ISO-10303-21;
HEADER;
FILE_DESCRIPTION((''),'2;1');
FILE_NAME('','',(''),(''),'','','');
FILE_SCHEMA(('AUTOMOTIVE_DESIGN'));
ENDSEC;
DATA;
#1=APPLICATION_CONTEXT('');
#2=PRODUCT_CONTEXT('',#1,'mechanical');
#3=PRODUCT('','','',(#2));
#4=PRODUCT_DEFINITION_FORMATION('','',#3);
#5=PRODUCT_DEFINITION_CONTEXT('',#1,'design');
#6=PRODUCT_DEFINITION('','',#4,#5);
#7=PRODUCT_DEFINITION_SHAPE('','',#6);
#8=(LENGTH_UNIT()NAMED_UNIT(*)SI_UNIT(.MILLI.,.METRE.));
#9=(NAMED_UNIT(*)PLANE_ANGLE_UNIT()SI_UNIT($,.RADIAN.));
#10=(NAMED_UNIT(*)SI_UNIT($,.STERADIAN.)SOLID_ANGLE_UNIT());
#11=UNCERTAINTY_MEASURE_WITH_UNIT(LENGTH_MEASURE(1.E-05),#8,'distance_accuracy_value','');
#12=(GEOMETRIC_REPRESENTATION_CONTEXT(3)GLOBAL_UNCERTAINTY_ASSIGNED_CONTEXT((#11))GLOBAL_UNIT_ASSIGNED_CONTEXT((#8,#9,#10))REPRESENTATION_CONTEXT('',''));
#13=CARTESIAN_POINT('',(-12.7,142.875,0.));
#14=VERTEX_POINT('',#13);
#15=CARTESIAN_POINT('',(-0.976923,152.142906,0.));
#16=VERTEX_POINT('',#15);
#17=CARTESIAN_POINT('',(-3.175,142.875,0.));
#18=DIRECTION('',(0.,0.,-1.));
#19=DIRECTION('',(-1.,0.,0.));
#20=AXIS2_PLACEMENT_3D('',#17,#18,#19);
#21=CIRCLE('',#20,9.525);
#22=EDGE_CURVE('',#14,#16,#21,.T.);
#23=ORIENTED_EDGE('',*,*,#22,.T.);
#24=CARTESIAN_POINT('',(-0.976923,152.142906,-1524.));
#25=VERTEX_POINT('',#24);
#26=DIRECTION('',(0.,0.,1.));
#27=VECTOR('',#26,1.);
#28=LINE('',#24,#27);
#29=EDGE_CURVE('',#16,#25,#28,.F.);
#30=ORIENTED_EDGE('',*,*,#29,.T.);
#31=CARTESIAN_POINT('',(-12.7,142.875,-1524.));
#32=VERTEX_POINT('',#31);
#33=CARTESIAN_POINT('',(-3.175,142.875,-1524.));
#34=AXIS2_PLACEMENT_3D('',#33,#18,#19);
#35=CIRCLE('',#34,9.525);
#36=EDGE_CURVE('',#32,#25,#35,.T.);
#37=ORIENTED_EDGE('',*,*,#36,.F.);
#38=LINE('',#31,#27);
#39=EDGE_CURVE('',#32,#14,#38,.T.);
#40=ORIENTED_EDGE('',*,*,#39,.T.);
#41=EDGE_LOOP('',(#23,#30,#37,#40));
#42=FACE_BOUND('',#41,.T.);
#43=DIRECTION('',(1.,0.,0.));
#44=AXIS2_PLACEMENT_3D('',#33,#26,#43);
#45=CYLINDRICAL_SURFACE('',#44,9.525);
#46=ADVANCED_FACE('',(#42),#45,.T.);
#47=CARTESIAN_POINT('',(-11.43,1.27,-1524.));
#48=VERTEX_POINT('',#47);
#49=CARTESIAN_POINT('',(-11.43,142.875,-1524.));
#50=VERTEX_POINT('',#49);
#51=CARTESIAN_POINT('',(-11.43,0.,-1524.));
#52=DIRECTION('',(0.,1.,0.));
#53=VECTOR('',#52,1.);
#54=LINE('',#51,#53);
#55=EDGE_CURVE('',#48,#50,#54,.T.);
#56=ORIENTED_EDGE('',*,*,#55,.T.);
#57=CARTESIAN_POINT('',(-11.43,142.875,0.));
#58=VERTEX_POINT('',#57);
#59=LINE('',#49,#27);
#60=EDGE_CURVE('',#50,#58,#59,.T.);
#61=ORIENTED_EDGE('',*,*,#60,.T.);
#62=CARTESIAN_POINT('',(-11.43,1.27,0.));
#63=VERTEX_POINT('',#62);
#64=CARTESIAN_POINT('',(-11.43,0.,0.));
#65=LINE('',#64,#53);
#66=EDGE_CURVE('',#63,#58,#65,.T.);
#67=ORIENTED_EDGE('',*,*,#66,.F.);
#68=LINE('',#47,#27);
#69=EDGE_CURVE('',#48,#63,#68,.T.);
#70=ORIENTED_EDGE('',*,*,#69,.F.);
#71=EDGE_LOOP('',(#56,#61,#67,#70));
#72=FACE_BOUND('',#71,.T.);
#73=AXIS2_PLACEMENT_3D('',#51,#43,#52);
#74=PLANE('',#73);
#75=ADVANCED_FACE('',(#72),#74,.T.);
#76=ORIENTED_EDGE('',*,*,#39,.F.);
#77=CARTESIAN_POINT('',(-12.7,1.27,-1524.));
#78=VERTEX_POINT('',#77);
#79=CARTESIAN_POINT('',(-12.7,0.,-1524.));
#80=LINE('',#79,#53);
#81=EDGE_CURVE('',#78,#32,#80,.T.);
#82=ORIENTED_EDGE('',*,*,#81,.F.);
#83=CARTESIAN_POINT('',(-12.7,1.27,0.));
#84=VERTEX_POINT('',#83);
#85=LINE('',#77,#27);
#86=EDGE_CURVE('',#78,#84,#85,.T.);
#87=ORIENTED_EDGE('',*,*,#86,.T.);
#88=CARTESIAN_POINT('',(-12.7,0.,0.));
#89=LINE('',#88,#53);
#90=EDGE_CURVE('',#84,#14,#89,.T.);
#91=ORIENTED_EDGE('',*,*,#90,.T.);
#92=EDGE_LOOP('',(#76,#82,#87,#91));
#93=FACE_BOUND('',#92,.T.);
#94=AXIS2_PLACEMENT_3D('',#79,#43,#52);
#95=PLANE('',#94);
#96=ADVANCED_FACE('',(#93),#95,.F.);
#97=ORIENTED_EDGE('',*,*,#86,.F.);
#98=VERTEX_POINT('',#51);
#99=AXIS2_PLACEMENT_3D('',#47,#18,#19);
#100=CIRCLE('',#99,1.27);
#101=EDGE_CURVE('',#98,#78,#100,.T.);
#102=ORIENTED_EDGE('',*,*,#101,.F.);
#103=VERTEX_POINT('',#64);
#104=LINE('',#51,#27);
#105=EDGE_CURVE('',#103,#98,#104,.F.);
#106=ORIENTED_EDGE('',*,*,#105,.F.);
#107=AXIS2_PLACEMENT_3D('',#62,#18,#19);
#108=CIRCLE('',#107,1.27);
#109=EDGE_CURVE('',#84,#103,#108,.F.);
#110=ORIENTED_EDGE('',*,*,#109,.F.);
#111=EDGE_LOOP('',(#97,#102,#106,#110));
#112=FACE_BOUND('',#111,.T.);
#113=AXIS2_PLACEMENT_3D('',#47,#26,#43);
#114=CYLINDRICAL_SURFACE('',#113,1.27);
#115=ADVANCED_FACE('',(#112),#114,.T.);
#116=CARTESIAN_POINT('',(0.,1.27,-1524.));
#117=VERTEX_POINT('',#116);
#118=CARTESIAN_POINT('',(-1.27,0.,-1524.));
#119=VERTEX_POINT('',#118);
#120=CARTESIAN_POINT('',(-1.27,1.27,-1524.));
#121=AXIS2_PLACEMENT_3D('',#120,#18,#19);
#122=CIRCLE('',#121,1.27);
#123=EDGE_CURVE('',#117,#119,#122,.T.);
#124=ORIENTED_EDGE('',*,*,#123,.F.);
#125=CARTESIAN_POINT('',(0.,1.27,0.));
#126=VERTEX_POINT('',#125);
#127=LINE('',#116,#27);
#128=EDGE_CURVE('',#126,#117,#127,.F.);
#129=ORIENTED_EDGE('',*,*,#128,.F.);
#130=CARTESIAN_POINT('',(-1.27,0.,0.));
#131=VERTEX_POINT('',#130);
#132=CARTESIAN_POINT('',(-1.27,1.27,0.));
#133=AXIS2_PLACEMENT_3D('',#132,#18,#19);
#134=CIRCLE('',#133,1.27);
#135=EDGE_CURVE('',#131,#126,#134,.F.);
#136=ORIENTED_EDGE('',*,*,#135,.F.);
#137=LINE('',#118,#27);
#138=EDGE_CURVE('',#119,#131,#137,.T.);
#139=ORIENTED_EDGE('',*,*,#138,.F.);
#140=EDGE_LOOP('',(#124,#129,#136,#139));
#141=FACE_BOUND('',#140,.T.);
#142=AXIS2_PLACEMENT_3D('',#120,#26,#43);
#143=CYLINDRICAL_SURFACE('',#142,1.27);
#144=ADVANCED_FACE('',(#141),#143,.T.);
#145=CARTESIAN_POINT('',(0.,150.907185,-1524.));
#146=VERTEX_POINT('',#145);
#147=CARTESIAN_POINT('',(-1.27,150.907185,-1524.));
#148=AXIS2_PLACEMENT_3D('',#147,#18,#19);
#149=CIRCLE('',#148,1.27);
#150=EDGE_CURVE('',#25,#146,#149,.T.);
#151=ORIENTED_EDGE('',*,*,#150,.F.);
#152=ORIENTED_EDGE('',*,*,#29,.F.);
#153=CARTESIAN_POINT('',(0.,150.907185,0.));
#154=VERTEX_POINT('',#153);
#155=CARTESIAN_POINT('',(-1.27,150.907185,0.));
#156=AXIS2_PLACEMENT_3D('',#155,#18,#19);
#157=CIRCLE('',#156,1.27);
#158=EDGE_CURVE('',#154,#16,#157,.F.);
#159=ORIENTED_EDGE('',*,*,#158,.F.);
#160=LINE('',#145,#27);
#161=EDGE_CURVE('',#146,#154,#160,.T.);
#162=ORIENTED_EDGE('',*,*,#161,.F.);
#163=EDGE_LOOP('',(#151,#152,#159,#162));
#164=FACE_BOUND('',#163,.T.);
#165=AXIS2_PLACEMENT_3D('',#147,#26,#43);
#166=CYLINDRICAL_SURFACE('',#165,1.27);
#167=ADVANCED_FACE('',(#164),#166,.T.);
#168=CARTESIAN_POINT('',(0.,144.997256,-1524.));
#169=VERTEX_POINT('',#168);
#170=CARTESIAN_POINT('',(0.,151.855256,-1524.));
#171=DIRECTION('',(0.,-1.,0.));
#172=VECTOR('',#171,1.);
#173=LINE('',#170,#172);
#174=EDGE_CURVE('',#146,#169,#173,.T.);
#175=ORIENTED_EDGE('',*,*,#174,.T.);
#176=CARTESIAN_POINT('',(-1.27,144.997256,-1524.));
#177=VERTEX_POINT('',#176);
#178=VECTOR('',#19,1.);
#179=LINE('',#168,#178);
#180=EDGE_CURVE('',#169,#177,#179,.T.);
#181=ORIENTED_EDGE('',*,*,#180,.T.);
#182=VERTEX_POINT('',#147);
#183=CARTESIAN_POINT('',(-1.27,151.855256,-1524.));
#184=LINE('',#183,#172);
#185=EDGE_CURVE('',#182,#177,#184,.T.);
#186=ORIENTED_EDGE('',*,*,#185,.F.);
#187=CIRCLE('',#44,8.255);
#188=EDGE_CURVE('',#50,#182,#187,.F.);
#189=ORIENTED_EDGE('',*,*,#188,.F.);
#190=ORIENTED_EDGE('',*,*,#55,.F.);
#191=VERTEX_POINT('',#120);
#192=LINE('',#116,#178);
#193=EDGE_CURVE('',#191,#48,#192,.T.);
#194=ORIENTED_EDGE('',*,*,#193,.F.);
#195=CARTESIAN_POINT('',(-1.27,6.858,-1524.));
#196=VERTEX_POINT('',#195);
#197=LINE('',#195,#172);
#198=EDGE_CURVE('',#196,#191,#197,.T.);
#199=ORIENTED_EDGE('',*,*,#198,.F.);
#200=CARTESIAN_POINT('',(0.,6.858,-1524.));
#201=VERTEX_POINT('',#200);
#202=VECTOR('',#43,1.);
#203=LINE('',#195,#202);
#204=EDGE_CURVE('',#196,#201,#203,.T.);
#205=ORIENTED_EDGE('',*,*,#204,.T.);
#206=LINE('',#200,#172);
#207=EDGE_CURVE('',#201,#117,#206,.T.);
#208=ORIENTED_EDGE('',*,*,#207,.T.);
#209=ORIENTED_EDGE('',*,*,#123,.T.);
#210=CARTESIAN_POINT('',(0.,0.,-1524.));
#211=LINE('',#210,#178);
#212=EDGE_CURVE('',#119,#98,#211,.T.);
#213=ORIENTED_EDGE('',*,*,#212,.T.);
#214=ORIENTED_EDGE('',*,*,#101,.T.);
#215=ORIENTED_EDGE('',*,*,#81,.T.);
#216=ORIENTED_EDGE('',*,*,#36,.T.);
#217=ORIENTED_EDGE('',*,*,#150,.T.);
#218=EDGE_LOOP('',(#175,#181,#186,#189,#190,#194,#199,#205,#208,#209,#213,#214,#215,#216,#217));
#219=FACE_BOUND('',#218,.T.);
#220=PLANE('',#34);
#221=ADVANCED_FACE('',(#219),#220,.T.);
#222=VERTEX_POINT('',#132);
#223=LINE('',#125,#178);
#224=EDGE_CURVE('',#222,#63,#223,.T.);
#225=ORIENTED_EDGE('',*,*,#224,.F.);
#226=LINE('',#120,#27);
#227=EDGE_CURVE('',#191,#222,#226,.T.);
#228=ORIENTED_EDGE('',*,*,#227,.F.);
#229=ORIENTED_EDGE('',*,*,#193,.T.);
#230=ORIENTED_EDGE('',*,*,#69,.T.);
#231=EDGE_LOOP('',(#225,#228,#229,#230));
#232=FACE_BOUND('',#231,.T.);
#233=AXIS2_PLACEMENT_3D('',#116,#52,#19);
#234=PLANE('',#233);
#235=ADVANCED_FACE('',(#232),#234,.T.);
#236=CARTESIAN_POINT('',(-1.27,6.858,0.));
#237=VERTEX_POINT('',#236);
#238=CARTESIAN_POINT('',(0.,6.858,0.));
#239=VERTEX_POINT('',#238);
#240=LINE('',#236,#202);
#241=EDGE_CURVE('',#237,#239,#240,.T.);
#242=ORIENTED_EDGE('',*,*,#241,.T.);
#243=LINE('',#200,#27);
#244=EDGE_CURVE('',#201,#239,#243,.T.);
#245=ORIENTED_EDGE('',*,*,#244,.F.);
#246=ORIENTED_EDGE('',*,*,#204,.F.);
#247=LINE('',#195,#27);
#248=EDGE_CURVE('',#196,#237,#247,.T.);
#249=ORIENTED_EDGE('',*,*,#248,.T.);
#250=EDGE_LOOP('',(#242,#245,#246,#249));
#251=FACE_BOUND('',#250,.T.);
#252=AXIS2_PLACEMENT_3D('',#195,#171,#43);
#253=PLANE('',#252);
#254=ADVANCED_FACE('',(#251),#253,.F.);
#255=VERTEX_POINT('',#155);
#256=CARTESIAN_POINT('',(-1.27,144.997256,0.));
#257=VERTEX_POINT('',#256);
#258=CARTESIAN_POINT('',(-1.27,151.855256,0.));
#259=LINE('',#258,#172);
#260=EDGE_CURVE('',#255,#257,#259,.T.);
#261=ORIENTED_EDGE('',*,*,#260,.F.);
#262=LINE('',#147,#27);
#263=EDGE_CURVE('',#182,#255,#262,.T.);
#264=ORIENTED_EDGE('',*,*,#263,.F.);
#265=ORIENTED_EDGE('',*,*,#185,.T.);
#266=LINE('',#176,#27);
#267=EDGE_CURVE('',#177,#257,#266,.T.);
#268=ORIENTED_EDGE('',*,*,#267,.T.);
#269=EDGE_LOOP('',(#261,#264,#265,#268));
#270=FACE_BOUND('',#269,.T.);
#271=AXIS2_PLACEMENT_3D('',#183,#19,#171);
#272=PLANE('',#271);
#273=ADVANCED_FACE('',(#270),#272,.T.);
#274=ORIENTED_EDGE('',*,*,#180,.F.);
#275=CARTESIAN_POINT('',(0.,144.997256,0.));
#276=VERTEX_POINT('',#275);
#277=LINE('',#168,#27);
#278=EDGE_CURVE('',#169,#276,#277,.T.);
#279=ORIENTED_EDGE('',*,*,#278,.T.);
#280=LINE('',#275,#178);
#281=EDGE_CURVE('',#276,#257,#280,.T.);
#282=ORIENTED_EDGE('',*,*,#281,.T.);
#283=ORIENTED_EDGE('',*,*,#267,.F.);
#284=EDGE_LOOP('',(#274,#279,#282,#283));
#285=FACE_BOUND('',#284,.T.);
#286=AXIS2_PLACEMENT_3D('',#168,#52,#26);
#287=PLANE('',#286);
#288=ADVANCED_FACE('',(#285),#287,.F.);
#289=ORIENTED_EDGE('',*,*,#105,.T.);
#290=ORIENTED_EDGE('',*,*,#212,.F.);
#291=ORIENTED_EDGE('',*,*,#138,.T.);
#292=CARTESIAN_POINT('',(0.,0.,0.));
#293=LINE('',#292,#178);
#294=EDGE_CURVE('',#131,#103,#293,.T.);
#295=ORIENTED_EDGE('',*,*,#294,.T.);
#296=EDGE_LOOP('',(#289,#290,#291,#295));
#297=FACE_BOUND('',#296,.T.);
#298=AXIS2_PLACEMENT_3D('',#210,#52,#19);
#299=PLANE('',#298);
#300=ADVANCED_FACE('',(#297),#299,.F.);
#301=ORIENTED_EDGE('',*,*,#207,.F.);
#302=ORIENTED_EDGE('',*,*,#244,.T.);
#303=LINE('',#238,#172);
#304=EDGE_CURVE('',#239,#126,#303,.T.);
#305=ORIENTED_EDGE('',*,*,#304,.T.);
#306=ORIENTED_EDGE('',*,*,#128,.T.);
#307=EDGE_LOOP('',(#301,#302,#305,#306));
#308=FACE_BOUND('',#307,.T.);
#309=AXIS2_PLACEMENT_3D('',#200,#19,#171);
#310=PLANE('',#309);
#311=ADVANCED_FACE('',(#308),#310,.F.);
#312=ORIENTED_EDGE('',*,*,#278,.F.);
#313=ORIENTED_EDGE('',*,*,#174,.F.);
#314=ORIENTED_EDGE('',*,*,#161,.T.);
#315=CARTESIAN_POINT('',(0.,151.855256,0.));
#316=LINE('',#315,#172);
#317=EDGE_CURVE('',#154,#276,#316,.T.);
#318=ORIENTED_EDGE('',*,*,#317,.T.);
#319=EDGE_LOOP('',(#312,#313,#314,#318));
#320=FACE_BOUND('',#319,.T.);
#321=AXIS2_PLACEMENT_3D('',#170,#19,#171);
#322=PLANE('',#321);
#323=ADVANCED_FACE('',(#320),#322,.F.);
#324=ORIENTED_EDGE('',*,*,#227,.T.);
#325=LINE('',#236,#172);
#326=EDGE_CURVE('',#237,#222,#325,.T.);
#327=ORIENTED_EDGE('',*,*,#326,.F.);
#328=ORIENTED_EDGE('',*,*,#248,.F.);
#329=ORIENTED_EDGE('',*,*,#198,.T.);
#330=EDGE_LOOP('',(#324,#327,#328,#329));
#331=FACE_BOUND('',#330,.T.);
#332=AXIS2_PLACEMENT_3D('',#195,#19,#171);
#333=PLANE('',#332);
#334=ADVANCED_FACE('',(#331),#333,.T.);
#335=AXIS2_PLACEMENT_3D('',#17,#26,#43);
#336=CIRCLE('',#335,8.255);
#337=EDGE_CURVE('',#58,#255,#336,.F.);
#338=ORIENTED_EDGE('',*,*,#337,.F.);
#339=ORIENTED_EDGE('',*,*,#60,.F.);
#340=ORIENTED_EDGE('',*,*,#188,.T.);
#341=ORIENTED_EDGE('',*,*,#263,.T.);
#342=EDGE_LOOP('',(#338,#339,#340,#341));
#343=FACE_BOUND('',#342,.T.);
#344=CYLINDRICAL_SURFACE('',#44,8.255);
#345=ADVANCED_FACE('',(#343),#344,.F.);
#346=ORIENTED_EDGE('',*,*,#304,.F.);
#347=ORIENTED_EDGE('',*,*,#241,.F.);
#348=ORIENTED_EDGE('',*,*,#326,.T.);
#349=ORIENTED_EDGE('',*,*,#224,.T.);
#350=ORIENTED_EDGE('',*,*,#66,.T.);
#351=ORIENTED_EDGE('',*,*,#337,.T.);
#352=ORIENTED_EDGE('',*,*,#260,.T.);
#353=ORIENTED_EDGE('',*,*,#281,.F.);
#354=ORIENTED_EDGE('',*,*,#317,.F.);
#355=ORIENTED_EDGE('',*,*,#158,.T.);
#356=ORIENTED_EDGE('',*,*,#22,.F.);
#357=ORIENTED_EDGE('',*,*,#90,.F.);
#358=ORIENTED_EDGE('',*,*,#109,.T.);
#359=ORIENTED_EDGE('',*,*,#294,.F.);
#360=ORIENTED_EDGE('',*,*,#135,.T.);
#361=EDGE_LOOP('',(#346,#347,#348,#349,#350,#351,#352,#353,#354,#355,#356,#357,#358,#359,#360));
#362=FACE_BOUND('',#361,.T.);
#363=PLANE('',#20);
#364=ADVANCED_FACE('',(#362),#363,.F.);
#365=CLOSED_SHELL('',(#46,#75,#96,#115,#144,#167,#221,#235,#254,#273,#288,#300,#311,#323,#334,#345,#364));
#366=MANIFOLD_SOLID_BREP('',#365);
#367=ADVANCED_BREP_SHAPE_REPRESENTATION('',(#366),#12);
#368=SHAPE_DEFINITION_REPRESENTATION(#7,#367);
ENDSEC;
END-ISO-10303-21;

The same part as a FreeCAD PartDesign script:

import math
import FreeCAD as App
import Part
import Sketcher
from FreeCAD import Vector
Q = App.Units.Quantity


def edges_at(feature, points):
    """Names of the edges that pass closest to the given points."""
    edges = feature.Shape.Edges
    near = lambda p: min(range(len(edges)), key=lambda i: edges[i].distToShape(Part.Vertex(*p))[0])
    return sorted({f"Edge{near(p) + 1}" for p in points})

doc = App.newDocument("Part")
body = doc.addObject("PartDesign::Body", "Body")

sketch1 = body.newObject("Sketcher::SketchObject", "Sketch")
sketch1.AttachmentSupport = (doc.getObject("XY_Plane"), [""])
sketch1.MapMode = "FlatFace"
sketch1.addGeometry([
    Part.LineSegment(Vector(0, 0, 0), Vector(0, 6.858, 0)),
    Part.LineSegment(Vector(0, 6.858, 0), Vector(-1.27, 6.858, 0)),
    Part.LineSegment(Vector(-1.27, 6.858, 0), Vector(-1.27, 1.27, 0)),
    Part.LineSegment(Vector(-1.27, 1.27, 0), Vector(-11.43, 1.27, 0)),
    Part.LineSegment(Vector(-11.43, 1.27, 0), Vector(-11.43, 142.875, 0)),
    Part.ArcOfCircle(Part.Circle(Vector(-3.175, 142.875, 0), Vector(0, 0, 1), 8.255), math.radians(76.657636), math.radians(180)),
    Part.LineSegment(Vector(-1.27, 150.907185, 0), Vector(-1.27, 144.997256, 0)),
    Part.LineSegment(Vector(-1.27, 144.997256, 0), Vector(0, 144.997256, 0)),
    Part.LineSegment(Vector(0, 144.997256, 0), Vector(0, 151.855256, 0)),
    Part.ArcOfCircle(Part.Circle(Vector(-3.175, 142.875, 0), Vector(0, 0, 1), 9.525), math.radians(70.528779), math.radians(180)),
    Part.LineSegment(Vector(-12.7, 142.875, 0), Vector(-12.7, 0, 0)),
    Part.LineSegment(Vector(-12.7, 0, 0), Vector(0, 0, 0)),
], False)
sketch1.addConstraint([
    Sketcher.Constraint("Coincident", 0, 2, 1, 1),
    Sketcher.Constraint("Coincident", 1, 2, 2, 1),
    Sketcher.Constraint("Coincident", 2, 2, 3, 1),
    Sketcher.Constraint("Coincident", 3, 2, 4, 1),
    Sketcher.Constraint("Tangent", 4, 2, 5, 2),
    Sketcher.Constraint("Coincident", 5, 1, 6, 1),
    Sketcher.Constraint("Coincident", 6, 2, 7, 1),
    Sketcher.Constraint("Coincident", 7, 2, 8, 1),
    Sketcher.Constraint("Coincident", 8, 2, 9, 1),
    Sketcher.Constraint("Tangent", 9, 2, 10, 1),
    Sketcher.Constraint("Coincident", 10, 2, 11, 1),
    Sketcher.Constraint("Coincident", 11, 2, 0, 1),
    Sketcher.Constraint("Vertical", 0),
    Sketcher.Constraint("Horizontal", 1),
    Sketcher.Constraint("Vertical", 2),
    Sketcher.Constraint("Horizontal", 3),
    Sketcher.Constraint("Vertical", 4),
    Sketcher.Constraint("Vertical", 6),
    Sketcher.Constraint("Horizontal", 7),
    Sketcher.Constraint("Vertical", 8),
    Sketcher.Constraint("Vertical", 10),
    Sketcher.Constraint("Horizontal", 11),
    Sketcher.Constraint("Coincident", 11, 2, -1, 1),
    Sketcher.Constraint("Coincident", 9, 3, 5, 3),
    Sketcher.Constraint("PointOnObject", 7, 2, -2),
    Sketcher.Constraint("Vertical", 2, 2, 5, 1),
    Sketcher.Constraint("Equal", 0, 8),
    Sketcher.Constraint("DistanceX", 3, 2, 3, 1, Q("0.4 in")),
    Sketcher.Constraint("DistanceX", 11, 1, 11, 2, Q("0.5 in")),
    Sketcher.Constraint("Radius", 5, Q("0.325 in")),
    Sketcher.Constraint("Radius", 9, Q("0.375 in")),
    Sketcher.Constraint("DistanceY", 0, 1, 0, 2, Q("0.27 in")),
    Sketcher.Constraint("DistanceY", 2, 2, 2, 1, Q("0.22 in")),
    Sketcher.Constraint("DistanceY", 4, 1, 4, 2, Q("5.575 in")),
])
pad1 = body.newObject("PartDesign::Pad", "Pad")
pad1.Profile = sketch1
pad1.Length = Q("60 in")
pad1.Reversed = True
doc.recompute()

fillet = body.newObject("PartDesign::Fillet", "Fillet")
fillet.Base = (pad1, edges_at(pad1, [(0, 0, -762), (-12.7, 0, -762), (0, 151.855, -762)]))
fillet.Radius = Q("0.05 in")

doc.recompute()
